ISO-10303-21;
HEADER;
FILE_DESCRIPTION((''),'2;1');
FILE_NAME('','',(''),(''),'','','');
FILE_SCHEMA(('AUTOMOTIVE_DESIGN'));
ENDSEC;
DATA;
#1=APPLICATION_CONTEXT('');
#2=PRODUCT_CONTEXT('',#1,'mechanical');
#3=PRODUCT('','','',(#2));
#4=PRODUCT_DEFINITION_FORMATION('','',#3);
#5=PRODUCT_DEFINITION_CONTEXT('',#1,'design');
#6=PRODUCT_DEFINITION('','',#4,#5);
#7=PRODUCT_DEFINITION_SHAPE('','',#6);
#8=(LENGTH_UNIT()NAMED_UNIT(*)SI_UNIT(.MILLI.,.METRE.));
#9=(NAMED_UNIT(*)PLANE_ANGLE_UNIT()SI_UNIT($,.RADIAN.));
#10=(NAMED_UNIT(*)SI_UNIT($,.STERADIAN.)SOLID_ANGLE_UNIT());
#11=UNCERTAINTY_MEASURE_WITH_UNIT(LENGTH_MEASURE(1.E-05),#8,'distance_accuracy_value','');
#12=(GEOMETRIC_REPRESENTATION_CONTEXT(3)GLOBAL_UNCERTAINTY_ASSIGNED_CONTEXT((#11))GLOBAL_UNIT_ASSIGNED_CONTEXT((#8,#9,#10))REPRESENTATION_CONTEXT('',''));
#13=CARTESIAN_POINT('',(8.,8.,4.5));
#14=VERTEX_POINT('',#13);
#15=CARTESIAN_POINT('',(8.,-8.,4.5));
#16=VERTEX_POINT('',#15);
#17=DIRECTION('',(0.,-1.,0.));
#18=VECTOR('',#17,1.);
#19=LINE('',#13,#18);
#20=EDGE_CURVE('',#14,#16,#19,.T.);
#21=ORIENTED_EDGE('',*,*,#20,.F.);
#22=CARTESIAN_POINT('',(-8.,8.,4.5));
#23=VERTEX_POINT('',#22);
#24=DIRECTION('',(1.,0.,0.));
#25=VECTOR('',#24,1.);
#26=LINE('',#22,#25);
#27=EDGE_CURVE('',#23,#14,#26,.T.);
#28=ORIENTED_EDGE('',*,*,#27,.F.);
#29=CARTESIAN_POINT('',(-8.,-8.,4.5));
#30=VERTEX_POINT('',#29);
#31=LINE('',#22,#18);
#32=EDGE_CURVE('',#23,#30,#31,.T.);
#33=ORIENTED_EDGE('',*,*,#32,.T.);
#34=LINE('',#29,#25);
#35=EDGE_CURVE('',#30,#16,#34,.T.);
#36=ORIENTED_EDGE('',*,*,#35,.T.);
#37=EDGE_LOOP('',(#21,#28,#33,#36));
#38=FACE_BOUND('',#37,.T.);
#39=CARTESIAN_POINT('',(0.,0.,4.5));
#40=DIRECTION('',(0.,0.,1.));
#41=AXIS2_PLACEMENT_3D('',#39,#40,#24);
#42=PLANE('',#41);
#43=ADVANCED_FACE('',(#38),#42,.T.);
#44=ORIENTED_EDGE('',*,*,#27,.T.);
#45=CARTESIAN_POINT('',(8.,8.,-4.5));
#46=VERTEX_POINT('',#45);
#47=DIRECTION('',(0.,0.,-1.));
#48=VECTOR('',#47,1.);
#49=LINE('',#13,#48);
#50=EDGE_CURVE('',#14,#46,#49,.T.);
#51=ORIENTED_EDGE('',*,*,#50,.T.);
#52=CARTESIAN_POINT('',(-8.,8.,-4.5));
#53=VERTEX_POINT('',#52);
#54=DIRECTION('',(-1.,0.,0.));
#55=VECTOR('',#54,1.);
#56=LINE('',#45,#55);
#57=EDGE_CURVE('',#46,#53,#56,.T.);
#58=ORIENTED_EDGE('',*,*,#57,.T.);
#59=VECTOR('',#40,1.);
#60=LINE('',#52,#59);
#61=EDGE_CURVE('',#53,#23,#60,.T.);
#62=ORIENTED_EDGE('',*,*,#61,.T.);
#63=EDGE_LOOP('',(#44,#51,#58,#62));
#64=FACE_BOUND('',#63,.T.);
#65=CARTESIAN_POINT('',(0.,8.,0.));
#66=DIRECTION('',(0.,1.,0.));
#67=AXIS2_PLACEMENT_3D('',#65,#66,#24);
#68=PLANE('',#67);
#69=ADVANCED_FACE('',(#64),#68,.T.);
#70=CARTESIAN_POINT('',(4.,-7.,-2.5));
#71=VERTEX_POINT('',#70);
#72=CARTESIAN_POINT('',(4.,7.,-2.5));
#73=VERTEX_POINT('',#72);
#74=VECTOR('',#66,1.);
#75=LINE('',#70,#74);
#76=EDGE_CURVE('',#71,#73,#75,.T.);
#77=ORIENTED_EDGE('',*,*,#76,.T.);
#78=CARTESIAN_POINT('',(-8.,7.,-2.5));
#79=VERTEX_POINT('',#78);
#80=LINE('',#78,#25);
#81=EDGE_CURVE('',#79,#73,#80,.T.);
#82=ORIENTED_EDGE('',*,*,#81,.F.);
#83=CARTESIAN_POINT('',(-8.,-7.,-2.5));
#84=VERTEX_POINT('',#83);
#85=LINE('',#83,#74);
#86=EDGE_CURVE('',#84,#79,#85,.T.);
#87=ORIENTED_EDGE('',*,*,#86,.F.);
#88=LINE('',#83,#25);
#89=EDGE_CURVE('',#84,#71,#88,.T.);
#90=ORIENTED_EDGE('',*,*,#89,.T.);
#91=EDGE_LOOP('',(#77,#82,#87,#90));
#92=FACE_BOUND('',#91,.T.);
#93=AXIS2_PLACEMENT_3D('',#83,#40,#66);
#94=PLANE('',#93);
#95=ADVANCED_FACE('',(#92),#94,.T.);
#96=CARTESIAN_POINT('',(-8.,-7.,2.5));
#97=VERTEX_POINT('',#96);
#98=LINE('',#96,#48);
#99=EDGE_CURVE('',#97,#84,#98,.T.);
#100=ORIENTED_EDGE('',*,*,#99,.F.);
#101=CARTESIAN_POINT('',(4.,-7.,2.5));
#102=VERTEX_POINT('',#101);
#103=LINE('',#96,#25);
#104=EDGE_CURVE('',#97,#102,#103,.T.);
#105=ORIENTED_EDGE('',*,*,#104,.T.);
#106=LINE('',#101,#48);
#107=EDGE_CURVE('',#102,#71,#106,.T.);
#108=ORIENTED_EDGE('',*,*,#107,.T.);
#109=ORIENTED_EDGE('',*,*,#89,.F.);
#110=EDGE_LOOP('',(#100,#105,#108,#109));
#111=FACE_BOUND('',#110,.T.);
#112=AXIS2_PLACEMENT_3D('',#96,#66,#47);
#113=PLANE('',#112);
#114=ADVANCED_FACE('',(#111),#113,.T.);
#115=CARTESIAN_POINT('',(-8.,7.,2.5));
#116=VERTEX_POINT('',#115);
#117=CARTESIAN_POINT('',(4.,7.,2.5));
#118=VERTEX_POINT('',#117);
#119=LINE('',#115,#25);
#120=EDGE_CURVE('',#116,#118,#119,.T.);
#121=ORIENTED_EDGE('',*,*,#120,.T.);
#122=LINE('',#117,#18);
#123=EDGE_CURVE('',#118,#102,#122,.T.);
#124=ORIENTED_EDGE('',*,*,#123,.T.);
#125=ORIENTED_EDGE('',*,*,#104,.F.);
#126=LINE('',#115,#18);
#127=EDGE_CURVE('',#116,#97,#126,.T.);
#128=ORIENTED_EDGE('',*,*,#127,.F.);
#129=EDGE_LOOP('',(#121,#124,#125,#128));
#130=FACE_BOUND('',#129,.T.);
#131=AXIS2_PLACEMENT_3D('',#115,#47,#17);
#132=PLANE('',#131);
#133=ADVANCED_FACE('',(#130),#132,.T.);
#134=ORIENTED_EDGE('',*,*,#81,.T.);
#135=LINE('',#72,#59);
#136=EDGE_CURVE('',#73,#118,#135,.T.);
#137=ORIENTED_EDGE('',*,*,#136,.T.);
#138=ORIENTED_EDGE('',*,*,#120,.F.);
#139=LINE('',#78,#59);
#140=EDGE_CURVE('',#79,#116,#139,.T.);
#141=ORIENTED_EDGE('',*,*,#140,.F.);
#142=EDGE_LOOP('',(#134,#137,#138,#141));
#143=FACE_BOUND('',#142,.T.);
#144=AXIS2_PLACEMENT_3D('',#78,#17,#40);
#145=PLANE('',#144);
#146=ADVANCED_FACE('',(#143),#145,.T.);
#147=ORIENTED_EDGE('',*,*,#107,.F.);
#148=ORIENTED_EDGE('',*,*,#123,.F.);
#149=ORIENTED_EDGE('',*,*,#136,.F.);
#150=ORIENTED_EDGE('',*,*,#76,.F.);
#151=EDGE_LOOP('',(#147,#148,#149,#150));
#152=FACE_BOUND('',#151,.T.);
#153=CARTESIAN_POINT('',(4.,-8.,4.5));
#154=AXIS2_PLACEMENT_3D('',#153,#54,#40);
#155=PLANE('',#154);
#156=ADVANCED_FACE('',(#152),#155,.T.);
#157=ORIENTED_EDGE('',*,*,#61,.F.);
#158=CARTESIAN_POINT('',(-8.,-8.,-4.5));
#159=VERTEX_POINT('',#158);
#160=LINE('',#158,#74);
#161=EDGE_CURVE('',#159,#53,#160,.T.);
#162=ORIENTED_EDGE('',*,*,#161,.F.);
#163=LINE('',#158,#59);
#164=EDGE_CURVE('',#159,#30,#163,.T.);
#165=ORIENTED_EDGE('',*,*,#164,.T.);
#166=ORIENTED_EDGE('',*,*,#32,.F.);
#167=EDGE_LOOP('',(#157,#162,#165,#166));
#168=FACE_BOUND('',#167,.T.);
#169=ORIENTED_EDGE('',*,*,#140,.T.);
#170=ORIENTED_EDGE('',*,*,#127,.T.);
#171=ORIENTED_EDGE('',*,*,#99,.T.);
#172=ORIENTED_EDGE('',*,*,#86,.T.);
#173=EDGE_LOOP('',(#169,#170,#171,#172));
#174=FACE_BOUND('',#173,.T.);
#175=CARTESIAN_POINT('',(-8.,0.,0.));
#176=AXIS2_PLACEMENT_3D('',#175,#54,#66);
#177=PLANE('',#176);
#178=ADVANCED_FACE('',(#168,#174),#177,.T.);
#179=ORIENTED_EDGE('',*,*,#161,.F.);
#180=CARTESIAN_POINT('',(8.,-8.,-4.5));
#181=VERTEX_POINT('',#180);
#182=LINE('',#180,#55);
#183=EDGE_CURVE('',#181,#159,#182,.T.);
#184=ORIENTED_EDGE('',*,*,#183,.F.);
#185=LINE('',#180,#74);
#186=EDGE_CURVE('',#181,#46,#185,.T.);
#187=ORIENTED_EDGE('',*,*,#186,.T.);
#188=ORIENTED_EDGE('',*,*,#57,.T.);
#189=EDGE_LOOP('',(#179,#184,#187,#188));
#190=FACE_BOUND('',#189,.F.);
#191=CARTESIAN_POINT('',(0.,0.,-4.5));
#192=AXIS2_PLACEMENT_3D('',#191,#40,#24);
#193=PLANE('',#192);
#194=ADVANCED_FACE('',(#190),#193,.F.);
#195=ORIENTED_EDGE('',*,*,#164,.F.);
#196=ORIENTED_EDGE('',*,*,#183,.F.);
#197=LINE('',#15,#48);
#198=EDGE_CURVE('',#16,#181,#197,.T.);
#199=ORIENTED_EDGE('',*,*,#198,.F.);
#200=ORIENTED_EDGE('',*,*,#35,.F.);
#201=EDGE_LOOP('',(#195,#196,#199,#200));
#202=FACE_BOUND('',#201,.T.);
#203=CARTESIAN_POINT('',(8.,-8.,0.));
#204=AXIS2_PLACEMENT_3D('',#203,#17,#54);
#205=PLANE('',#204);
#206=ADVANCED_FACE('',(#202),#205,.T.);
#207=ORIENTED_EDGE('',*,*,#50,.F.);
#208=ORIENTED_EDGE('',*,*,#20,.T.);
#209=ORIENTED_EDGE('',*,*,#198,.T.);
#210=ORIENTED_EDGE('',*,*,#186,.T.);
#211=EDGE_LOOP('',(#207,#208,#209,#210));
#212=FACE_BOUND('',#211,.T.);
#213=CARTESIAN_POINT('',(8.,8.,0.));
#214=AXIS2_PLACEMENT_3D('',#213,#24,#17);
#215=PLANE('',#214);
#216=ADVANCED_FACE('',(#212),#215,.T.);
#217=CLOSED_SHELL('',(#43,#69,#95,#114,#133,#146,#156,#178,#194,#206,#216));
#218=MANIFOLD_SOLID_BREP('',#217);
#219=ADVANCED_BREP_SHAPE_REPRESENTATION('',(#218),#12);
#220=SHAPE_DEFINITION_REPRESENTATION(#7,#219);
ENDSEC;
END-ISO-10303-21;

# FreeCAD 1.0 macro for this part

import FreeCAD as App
import Part
import Sketcher


def add_polygon(sketch, points):
    """Adds a closed chain of lines whose ends are joined by coincident constraints."""
    first, n = sketch.GeometryCount, len(points)
    for a, b in zip(points, points[1:] + points[:1]):
        sketch.addGeometry(Part.LineSegment(App.Vector(*a, 0), App.Vector(*b, 0)), False)
    for i in range(n):
        sketch.addConstraint(Sketcher.Constraint("Coincident", first + i, 2, first + (i + 1) % n, 1))

doc = App.newDocument("Part")
body = doc.addObject("PartDesign::Body", "Body")

sketch1 = body.newObject("Sketcher::SketchObject", "Sketch")
sketch1.AttachmentSupport = (doc.getObject("XY_Plane"), [""])
sketch1.MapMode = "FlatFace"
add_polygon(sketch1, [(8, 8), (-8, 8), (-8, -8), (8, -8)])
sketch1.addConstraint(Sketcher.Constraint("Horizontal", 0))
sketch1.addConstraint(Sketcher.Constraint("Vertical", 1))
sketch1.addConstraint(Sketcher.Constraint("Horizontal", 2))
sketch1.addConstraint(Sketcher.Constraint("Vertical", 3))
sketch1.addConstraint(Sketcher.Constraint("Symmetric", 0, 2, 2, 2, -1, 1))
sketch1.addConstraint(Sketcher.Constraint("Equal", 2, 1))
sketch1.addConstraint(Sketcher.Constraint("DistanceX", 0, 2, 0, 1, 16.0))
pad1 = body.newObject("PartDesign::Pad", "Pad")
pad1.Profile = sketch1
pad1.Length = 9
pad1.Midplane = True

sketch2 = body.newObject("Sketcher::SketchObject", "Sketch001")
sketch2.AttachmentSupport = (doc.getObject("YZ_Plane"), [""])
sketch2.MapMode = "FlatFace"
sketch2.AttachmentOffset = App.Placement(App.Vector(0, 0, -8), App.Rotation())
add_polygon(sketch2, [(7, 2), (7, -2), (-7, -2), (-7, 2)])
sketch2.addConstraint(Sketcher.Constraint("Vertical", 0))
sketch2.addConstraint(Sketcher.Constraint("Horizontal", 1))
sketch2.addConstraint(Sketcher.Constraint("Vertical", 2))
sketch2.addConstraint(Sketcher.Constraint("Horizontal", 3))
sketch2.addConstraint(Sketcher.Constraint("Symmetric", 0, 2, 2, 2, -1, 1))
sketch2.addConstraint(Sketcher.Constraint("DistanceY", 0, 2, 0, 1, 5.0))
sketch2.addConstraint(Sketcher.Constraint("DistanceX", 1, 2, 1, 1, 14.0))
pocket1 = body.newObject("PartDesign::Pocket", "Pocket")
pocket1.Profile = sketch2
pocket1.Length = 12
pocket1.Reversed = True

doc.recompute()
